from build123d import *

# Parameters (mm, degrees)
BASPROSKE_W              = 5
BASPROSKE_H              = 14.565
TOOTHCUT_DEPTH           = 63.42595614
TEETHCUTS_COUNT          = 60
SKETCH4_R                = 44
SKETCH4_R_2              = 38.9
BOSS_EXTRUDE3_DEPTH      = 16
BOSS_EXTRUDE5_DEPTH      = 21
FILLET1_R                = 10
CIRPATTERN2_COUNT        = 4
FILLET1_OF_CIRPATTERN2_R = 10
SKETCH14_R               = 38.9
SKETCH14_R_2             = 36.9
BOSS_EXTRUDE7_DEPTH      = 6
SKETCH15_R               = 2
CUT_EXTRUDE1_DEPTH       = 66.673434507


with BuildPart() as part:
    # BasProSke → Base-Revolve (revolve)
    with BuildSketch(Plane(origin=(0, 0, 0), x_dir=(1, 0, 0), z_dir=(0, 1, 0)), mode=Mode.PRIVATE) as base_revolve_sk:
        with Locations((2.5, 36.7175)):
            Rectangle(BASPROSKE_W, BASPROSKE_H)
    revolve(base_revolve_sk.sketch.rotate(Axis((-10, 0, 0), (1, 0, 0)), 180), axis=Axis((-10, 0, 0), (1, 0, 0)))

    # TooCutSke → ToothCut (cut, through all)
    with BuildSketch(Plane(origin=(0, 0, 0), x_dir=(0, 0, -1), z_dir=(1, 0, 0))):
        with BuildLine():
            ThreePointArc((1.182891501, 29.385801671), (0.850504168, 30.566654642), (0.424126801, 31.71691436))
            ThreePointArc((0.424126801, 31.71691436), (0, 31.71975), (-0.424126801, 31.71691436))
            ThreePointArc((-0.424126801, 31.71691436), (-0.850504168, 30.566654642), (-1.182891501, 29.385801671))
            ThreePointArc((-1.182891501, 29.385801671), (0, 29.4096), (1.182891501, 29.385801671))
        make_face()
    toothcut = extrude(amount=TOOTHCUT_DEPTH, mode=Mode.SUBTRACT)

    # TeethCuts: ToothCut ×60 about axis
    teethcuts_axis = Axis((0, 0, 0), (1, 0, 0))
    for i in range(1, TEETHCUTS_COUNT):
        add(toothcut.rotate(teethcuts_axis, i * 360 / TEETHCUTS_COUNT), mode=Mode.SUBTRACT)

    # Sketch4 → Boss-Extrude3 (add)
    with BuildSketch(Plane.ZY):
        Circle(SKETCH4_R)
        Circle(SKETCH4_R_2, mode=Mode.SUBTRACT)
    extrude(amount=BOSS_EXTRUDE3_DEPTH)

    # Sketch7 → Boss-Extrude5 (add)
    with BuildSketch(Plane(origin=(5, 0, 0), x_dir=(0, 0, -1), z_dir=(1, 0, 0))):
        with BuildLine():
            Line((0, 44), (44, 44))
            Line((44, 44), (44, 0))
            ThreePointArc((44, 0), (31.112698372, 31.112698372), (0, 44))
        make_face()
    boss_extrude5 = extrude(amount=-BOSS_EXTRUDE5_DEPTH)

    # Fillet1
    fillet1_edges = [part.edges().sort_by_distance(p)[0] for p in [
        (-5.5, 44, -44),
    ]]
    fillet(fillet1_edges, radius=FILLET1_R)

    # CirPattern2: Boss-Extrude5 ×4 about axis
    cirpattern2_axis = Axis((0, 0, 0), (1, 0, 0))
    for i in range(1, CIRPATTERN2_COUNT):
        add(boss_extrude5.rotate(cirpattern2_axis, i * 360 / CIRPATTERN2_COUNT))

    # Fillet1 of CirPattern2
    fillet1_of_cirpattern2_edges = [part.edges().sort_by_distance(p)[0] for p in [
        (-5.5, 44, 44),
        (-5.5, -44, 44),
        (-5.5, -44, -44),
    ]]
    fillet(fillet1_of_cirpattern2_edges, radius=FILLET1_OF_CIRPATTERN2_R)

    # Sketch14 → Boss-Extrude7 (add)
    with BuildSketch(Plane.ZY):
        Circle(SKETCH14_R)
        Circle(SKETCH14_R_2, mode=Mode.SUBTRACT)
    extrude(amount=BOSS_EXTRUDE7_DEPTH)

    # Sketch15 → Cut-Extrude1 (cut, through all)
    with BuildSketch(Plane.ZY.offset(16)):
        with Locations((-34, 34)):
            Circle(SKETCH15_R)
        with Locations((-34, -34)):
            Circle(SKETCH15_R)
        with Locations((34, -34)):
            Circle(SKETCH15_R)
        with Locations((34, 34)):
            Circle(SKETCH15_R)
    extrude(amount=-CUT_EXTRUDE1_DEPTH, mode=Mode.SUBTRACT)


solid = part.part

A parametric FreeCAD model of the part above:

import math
import FreeCAD as App
import Part
import Sketcher

V = App.Vector


def edges_at(feature, points):
    """Names of the edges that pass closest to the given points."""
    edges = feature.Shape.Edges
    near = lambda p: min(range(len(edges)), key=lambda i: edges[i].distToShape(Part.Vertex(*p))[0])
    return sorted({f"Edge{near(p) + 1}" for p in points})

doc = App.newDocument("Part")
body = doc.addObject("PartDesign::Body", "Body")

# Sketch on XZ plane
sketch1 = body.newObject("Sketcher::SketchObject", "Sketch")
sketch1.AttachmentSupport = (doc.getObject("XZ_Plane"), [""])
sketch1.MapMode = "FlatFace"
sketch1.addGeometry([
    Part.LineSegment(V(0, -44, 0), V(0, -29.435, 0)),
    Part.LineSegment(V(0, -29.435, 0), V(5, -29.435, 0)),
    Part.LineSegment(V(5, -29.435, 0), V(5, -44, 0)),
    Part.LineSegment(V(5, -44, 0), V(0, -44, 0)),
], False)
sketch1.addConstraint([
    Sketcher.Constraint("Coincident", 0, 2, 1, 1),
    Sketcher.Constraint("Coincident", 1, 2, 2, 1),
    Sketcher.Constraint("Coincident", 2, 2, 3, 1),
    Sketcher.Constraint("Coincident", 3, 2, 0, 1),
    Sketcher.Constraint("Vertical", 0),
    Sketcher.Constraint("Horizontal", 1),
    Sketcher.Constraint("Vertical", 2),
    Sketcher.Constraint("Horizontal", 3),
    Sketcher.Constraint("PointOnObject", 0, 2, -2),
    Sketcher.Constraint("DistanceX", 1, 1, 1, 2, 5.0),
    Sketcher.Constraint("DistanceY", 2, 2, -1, 1, 44.0),
    Sketcher.Constraint("DistanceY", 0, 1, 0, 2, 14.565),
])
revolution = body.newObject("PartDesign::Revolution", "Revolution")
revolution.Profile = sketch1
revolution.ReferenceAxis = (sketch1, ["H_Axis"])
revolution.Angle = 360

# Sketch on YZ plane
sketch2 = body.newObject("Sketcher::SketchObject", "Sketch001")
sketch2.AttachmentSupport = (doc.getObject("YZ_Plane"), [""])
sketch2.MapMode = "FlatFace"
sketch2.addGeometry([
    Part.ArcOfCircle(Part.Circle(V(25.854343, 13.626883, 0), V(0, 0, 1), 15.225), math.radians(-76.588018), math.radians(-67.352399)),
    Part.ArcOfCircle(Part.Circle(V(0, 0, 0), V(0, 0, 1), 31.71975), math.radians(-0.766128), math.radians(0.766128)),
    Part.ArcOfCircle(Part.Circle(V(25.854343, -13.626883, 0), V(0, 0, 1), 15.225), math.radians(67.352399), math.radians(76.588018)),
    Part.ArcOfCircle(Part.Circle(V(0, 0, 0), V(0, 0, 1), 29.4096), math.radians(-2.305131), math.radians(2.305131)),
], False)
sketch2.addConstraint([
    Sketcher.Constraint("Coincident", 0, 2, 1, 1),
    Sketcher.Constraint("Coincident", 1, 2, 2, 1),
    Sketcher.Constraint("Coincident", 2, 2, 3, 2),
    Sketcher.Constraint("Coincident", 3, 1, 0, 1),
    Sketcher.Constraint("Coincident", 1, 3, -1, 1),
    Sketcher.Constraint("Coincident", 3, 3, -1, 1),
    Sketcher.Constraint("Equal", 0, 2),
    Sketcher.Constraint("Symmetric", 0, 3, 2, 3, -1),
    Sketcher.Constraint("Radius", 0, 15.225),
    Sketcher.Constraint("Radius", 3, 29.4096),
    Sketcher.Constraint("Radius", 1, 31.71975),
    Sketcher.Constraint("DistanceX", -1, 1, 3, 1, 29.385802),
    Sketcher.Constraint("DistanceX", 2, 3, 0, 2, 5.862572),
])
pocket1 = body.newObject("PartDesign::Pocket", "Pocket")
pocket1.Profile = sketch2
pocket1.Type = "ThroughAll"
pocket1.Reversed = True
doc.recompute()

polarpattern = body.newObject("PartDesign::PolarPattern", "PolarPattern")
polarpattern.Originals = [pocket1]
polarpattern.Axis = (doc.getObject("X_Axis"), [""])
polarpattern.Angle = 360
polarpattern.Occurrences = 60
body.Tip = polarpattern

# Sketch on YZ plane
sketch3 = body.newObject("Sketcher::SketchObject", "Sketch002")
sketch3.AttachmentSupport = (doc.getObject("YZ_Plane"), [""])
sketch3.MapMode = "FlatFace"
sketch3.addGeometry([
    Part.Circle(V(0, 0, 0), V(0, 0, 1), 44),
    Part.Circle(V(0, 0, 0), V(0, 0, 1), 38.9),
], False)
sketch3.addConstraint([
    Sketcher.Constraint("Coincident", 0, 3, -1, 1),
    Sketcher.Constraint("Coincident", 1, 3, -1, 1),
    Sketcher.Constraint("Diameter", 0, 88.0),
    Sketcher.Constraint("Diameter", 1, 77.8),
])
pad1 = body.newObject("PartDesign::Pad", "Pad")
pad1.Profile = sketch3
pad1.Length = 16
pad1.Reversed = True

# Sketch on YZ plane
sketch4 = body.newObject("Sketcher::SketchObject", "Sketch003")
sketch4.AttachmentSupport = (doc.getObject("YZ_Plane"), [""])
sketch4.MapMode = "FlatFace"
sketch4.AttachmentOffset = App.Placement(V(0, 0, 5), App.Rotation())
sketch4.addGeometry([
    Part.LineSegment(V(44, -44, 0), V(44, 0, 0)),
    Part.ArcOfCircle(Part.Circle(V(0, 0, 0), V(0, 0, 1), 44), math.radians(-90), math.radians(0)),
    Part.LineSegment(V(0, -44, 0), V(44, -44, 0)),
], False)
sketch4.addConstraint([
    Sketcher.Constraint("Tangent", 0, 2, 1, 2),
    Sketcher.Constraint("Tangent", 1, 1, 2, 1),
    Sketcher.Constraint("Coincident", 2, 2, 0, 1),
    Sketcher.Constraint("Vertical", 0),
    Sketcher.Constraint("Horizontal", 2),
    Sketcher.Constraint("Coincident", 1, 3, -1, 1),
    Sketcher.Constraint("Radius", 1, 44.0),
])
pad2 = body.newObject("PartDesign::Pad", "Pad001")
pad2.Profile = sketch4
pad2.Length = 21
pad2.Reversed = True
doc.recompute()

fillet = body.newObject("PartDesign::Fillet", "Fillet")
fillet.Base = (pad2, edges_at(pad2, [(-5.5, 44, -44)]))
fillet.Radius = 10
doc.recompute()

polarpattern2 = body.newObject("PartDesign::PolarPattern", "PolarPattern001")
polarpattern2.Originals = [pad2]
polarpattern2.Axis = (doc.getObject("X_Axis"), [""])
polarpattern2.Angle = 360
polarpattern2.Occurrences = 4
body.Tip = polarpattern2
doc.recompute()

fillet2 = body.newObject("PartDesign::Fillet", "Fillet001")
fillet2.Base = (polarpattern2, edges_at(polarpattern2, [(-5.5, 44, 44), (-5.5, -44, 44), (-5.5, -44, -44)]))
fillet2.Radius = 10

# Sketch on YZ plane
sketch5 = body.newObject("Sketcher::SketchObject", "Sketch004")
sketch5.AttachmentSupport = (doc.getObject("YZ_Plane"), [""])
sketch5.MapMode = "FlatFace"
sketch5.addGeometry([
    Part.Circle(V(0, 0, 0), V(0, 0, 1), 38.9),
    Part.Circle(V(0, 0, 0), V(0, 0, 1), 36.9),
], False)
sketch5.addConstraint([
    Sketcher.Constraint("Coincident", 0, 3, -1, 1),
    Sketcher.Constraint("Coincident", 1, 3, -1, 1),
    Sketcher.Constraint("Diameter", 0, 77.8),
    Sketcher.Constraint("Diameter", 1, 73.8),
])
pad3 = body.newObject("PartDesign::Pad", "Pad002")
pad3.Profile = sketch5
pad3.Length = 6
pad3.Reversed = True

# Sketch on YZ plane
sketch6 = body.newObject("Sketcher::SketchObject", "Sketch005")
sketch6.AttachmentSupport = (doc.getObject("YZ_Plane"), [""])
sketch6.MapMode = "FlatFace"
sketch6.AttachmentOffset = App.Placement(V(0, 0, -16), App.Rotation())
sketch6.addGeometry([
    Part.Circle(V(34, -34, 0), V(0, 0, 1), 2),
    Part.Circle(V(-34, -34, 0), V(0, 0, 1), 2),
    Part.Circle(V(-34, 34, 0), V(0, 0, 1), 2),
    Part.Circle(V(34, 34, 0), V(0, 0, 1), 2),
], False)
sketch6.addConstraint([
    Sketcher.Constraint("Equal", 0, 1),
    Sketcher.Constraint("Equal", 1, 2),
    Sketcher.Constraint("Equal", 2, 3),
    Sketcher.Constraint("Symmetric", 0, 3, 2, 3, -1, 1),
    Sketcher.Constraint("Symmetric", 1, 3, 3, 3, -1, 1),
    Sketcher.Constraint("Symmetric", 0, 3, 1, 3, -2),
    Sketcher.Constraint("Diameter", 0, 4.0),
    Sketcher.Constraint("DistanceX", -1, 1, 0, 3, 34.0),
    Sketcher.Constraint("DistanceY", 0, 3, -1, 1, 34.0),
])
pocket2 = body.newObject("PartDesign::Pocket", "Pocket001")
pocket2.Profile = sketch6
pocket2.Type = "ThroughAll"
pocket2.Reversed = True

doc.recompute()
